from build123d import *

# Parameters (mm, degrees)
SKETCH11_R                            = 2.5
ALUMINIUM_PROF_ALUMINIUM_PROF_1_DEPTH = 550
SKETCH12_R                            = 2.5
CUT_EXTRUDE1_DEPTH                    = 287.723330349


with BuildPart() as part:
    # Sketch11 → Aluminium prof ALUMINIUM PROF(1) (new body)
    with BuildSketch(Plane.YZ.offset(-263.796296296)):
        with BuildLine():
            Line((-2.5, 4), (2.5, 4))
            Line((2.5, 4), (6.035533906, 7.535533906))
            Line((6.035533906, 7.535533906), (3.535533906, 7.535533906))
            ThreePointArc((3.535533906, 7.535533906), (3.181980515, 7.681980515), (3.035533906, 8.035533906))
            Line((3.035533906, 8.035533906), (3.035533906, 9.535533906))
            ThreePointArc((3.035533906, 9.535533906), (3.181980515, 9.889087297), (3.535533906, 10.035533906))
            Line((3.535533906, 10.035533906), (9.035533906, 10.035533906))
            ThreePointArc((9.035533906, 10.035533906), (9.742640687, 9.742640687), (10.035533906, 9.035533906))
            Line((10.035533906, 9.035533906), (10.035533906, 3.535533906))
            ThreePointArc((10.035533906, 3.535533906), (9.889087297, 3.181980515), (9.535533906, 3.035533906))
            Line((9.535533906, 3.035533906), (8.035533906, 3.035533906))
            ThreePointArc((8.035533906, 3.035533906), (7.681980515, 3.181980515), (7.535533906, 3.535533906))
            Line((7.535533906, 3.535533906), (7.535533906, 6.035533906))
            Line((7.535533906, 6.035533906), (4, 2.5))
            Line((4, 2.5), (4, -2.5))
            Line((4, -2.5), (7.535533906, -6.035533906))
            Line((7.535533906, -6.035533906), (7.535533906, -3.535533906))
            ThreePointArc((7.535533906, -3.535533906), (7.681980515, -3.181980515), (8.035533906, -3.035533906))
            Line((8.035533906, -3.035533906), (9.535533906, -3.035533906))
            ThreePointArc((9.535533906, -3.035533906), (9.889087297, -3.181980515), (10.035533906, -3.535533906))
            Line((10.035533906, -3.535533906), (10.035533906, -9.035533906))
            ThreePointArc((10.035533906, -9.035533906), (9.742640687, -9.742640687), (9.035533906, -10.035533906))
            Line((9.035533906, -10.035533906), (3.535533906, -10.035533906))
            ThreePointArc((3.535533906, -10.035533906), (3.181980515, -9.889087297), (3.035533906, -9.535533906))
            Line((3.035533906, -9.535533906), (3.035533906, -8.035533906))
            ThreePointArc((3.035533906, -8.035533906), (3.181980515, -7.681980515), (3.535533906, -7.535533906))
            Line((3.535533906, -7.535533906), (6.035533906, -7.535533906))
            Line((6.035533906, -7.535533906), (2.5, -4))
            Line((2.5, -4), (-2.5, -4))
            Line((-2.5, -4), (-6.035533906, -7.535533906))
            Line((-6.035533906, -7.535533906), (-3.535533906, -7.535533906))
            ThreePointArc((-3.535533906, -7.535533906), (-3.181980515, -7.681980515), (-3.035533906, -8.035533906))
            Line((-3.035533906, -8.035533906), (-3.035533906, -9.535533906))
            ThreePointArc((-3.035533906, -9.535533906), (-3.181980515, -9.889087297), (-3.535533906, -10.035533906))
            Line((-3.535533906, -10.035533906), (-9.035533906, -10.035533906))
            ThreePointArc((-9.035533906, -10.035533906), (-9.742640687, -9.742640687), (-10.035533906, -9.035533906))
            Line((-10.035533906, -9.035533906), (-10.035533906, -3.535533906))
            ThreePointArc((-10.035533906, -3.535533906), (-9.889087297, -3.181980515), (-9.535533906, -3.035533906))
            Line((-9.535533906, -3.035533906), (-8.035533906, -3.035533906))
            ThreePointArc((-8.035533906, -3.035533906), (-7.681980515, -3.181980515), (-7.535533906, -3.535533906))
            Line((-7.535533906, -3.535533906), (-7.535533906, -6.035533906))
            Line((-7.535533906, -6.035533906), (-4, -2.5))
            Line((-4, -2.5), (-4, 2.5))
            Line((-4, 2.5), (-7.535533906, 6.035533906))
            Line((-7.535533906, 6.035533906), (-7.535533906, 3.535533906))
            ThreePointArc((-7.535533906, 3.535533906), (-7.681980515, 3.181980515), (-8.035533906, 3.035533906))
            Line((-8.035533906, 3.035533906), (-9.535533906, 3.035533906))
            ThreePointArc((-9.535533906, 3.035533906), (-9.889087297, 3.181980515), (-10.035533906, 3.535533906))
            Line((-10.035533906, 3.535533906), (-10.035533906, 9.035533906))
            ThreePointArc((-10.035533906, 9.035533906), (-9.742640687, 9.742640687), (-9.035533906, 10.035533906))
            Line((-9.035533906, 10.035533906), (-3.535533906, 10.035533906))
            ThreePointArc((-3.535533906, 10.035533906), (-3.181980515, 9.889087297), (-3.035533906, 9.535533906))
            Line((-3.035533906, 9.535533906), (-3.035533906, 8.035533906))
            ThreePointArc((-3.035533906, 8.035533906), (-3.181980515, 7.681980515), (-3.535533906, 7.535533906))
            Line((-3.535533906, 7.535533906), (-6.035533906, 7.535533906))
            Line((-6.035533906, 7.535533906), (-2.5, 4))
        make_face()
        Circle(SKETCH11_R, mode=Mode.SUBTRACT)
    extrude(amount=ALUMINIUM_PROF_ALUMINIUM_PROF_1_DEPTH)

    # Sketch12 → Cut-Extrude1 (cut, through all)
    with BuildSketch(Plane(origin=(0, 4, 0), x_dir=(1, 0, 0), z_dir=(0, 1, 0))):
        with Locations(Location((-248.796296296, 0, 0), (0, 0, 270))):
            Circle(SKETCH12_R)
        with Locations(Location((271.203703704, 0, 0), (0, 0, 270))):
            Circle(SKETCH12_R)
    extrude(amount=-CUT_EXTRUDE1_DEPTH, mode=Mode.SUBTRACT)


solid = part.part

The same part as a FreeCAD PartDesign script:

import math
import FreeCAD as App
import Part
import Sketcher

doc = App.newDocument("Part")
body = doc.addObject("PartDesign::Body", "Body")

sketch1 = body.newObject("Sketcher::SketchObject", "Sketch")
sketch1.AttachmentSupport = (doc.getObject("YZ_Plane"), [""])
sketch1.MapMode = "FlatFace"
sketch1.AttachmentOffset = App.Placement(App.Vector(0, 0, -263.796296), App.Rotation())
sketch1.addGeometry([
    Part.LineSegment(App.Vector(2.5, 4, 0), App.Vector(-2.5, 4, 0)),
    Part.LineSegment(App.Vector(-2.5, 4, 0), App.Vector(-6.04, 7.54, 0)),
    Part.LineSegment(App.Vector(-6.04, 7.54, 0), App.Vector(-3.54, 7.54, 0)),
    Part.ArcOfCircle(Part.Circle(App.Vector(-3.54, 8.04, 0), App.Vector(0, 0, 1), 0.5), math.radians(-90), math.radians(0)),
    Part.LineSegment(App.Vector(-3.04, 8.04, 0), App.Vector(-3.04, 9.54, 0)),
    Part.ArcOfCircle(Part.Circle(App.Vector(-3.54, 9.54, 0), App.Vector(0, 0, 1), 0.5), math.radians(0), math.radians(90)),
    Part.LineSegment(App.Vector(-3.54, 10.04, 0), App.Vector(-9.04, 10.04, 0)),
    Part.ArcOfCircle(Part.Circle(App.Vector(-9.04, 9.04, 0), App.Vector(0, 0, 1), 1), math.radians(90), math.radians(180)),
    Part.LineSegment(App.Vector(-10.04, 9.04, 0), App.Vector(-10.04, 3.54, 0)),
    Part.ArcOfCircle(Part.Circle(App.Vector(-9.54, 3.54, 0), App.Vector(0, 0, 1), 0.5), math.radians(180), math.radians(270)),
    Part.LineSegment(App.Vector(-9.54, 3.04, 0), App.Vector(-8.04, 3.04, 0)),
    Part.ArcOfCircle(Part.Circle(App.Vector(-8.04, 3.54, 0), App.Vector(0, 0, 1), 0.5), math.radians(-90), math.radians(0)),
    Part.LineSegment(App.Vector(-7.54, 3.54, 0), App.Vector(-7.54, 6.04, 0)),
    Part.LineSegment(App.Vector(-7.54, 6.04, 0), App.Vector(-4, 2.5, 0)),
    Part.LineSegment(App.Vector(-4, 2.5, 0), App.Vector(-4, -2.5, 0)),
    Part.LineSegment(App.Vector(-4, -2.5, 0), App.Vector(-7.54, -6.04, 0)),
    Part.LineSegment(App.Vector(-7.54, -6.04, 0), App.Vector(-7.54, -3.54, 0)),
    Part.ArcOfCircle(Part.Circle(App.Vector(-8.04, -3.54, 0), App.Vector(0, 0, 1), 0.5), math.radians(0), math.radians(90)),
    Part.LineSegment(App.Vector(-8.04, -3.04, 0), App.Vector(-9.54, -3.04, 0)),
    Part.ArcOfCircle(Part.Circle(App.Vector(-9.54, -3.54, 0), App.Vector(0, 0, 1), 0.5), math.radians(90), math.radians(180)),
    Part.LineSegment(App.Vector(-10.04, -3.54, 0), App.Vector(-10.04, -9.04, 0)),
    Part.ArcOfCircle(Part.Circle(App.Vector(-9.04, -9.04, 0), App.Vector(0, 0, 1), 1), math.radians(-180), math.radians(-90)),
    Part.LineSegment(App.Vector(-9.04, -10.04, 0), App.Vector(-3.54, -10.04, 0)),
    Part.ArcOfCircle(Part.Circle(App.Vector(-3.54, -9.54, 0), App.Vector(0, 0, 1), 0.5), math.radians(-90), math.radians(0)),
    Part.LineSegment(App.Vector(-3.04, -9.54, 0), App.Vector(-3.04, -8.04, 0)),
    Part.ArcOfCircle(Part.Circle(App.Vector(-3.54, -8.04, 0), App.Vector(0, 0, 1), 0.5), math.radians(0), math.radians(90)),
    Part.LineSegment(App.Vector(-3.54, -7.54, 0), App.Vector(-6.04, -7.54, 0)),
    Part.LineSegment(App.Vector(-6.04, -7.54, 0), App.Vector(-2.5, -4, 0)),
    Part.LineSegment(App.Vector(-2.5, -4, 0), App.Vector(2.5, -4, 0)),
    Part.LineSegment(App.Vector(2.5, -4, 0), App.Vector(6.04, -7.54, 0)),
    Part.LineSegment(App.Vector(6.04, -7.54, 0), App.Vector(3.54, -7.54, 0)),
    Part.ArcOfCircle(Part.Circle(App.Vector(3.54, -8.04, 0), App.Vector(0, 0, 1), 0.5), math.radians(90), math.radians(180)),
    Part.LineSegment(App.Vector(3.04, -8.04, 0), App.Vector(3.04, -9.54, 0)),
    Part.ArcOfCircle(Part.Circle(App.Vector(3.54, -9.54, 0), App.Vector(0, 0, 1), 0.5), math.radians(180), math.radians(270)),
    Part.LineSegment(App.Vector(3.54, -10.04, 0), App.Vector(9.04, -10.04, 0)),
    Part.ArcOfCircle(Part.Circle(App.Vector(9.04, -9.04, 0), App.Vector(0, 0, 1), 1), math.radians(-90), math.radians(0)),
    Part.LineSegment(App.Vector(10.04, -9.04, 0), App.Vector(10.04, -3.54, 0)),
    Part.ArcOfCircle(Part.Circle(App.Vector(9.54, -3.54, 0), App.Vector(0, 0, 1), 0.5), math.radians(0), math.radians(90)),
    Part.LineSegment(App.Vector(9.54, -3.04, 0), App.Vector(8.04, -3.04, 0)),
    Part.ArcOfCircle(Part.Circle(App.Vector(8.04, -3.54, 0), App.Vector(0, 0, 1), 0.5), math.radians(90), math.radians(180)),
    Part.LineSegment(App.Vector(7.54, -3.54, 0), App.Vector(7.54, -6.04, 0)),
    Part.LineSegment(App.Vector(7.54, -6.04, 0), App.Vector(4, -2.5, 0)),
    Part.LineSegment(App.Vector(4, -2.5, 0), App.Vector(4, 2.5, 0)),
    Part.LineSegment(App.Vector(4, 2.5, 0), App.Vector(7.54, 6.04, 0)),
    Part.LineSegment(App.Vector(7.54, 6.04, 0), App.Vector(7.54, 3.54, 0)),
    Part.ArcOfCircle(Part.Circle(App.Vector(8.04, 3.54, 0), App.Vector(0, 0, 1), 0.5), math.radians(180), math.radians(270)),
    Part.LineSegment(App.Vector(8.04, 3.04, 0), App.Vector(9.54, 3.04, 0)),
    Part.ArcOfCircle(Part.Circle(App.Vector(9.54, 3.54, 0), App.Vector(0, 0, 1), 0.5), math.radians(-90), math.radians(0)),
    Part.LineSegment(App.Vector(10.04, 3.54, 0), App.Vector(10.04, 9.04, 0)),
    Part.ArcOfCircle(Part.Circle(App.Vector(9.04, 9.04, 0), App.Vector(0, 0, 1), 1), math.radians(0), math.radians(90)),
    Part.LineSegment(App.Vector(9.04, 10.04, 0), App.Vector(3.54, 10.04, 0)),
    Part.ArcOfCircle(Part.Circle(App.Vector(3.54, 9.54, 0), App.Vector(0, 0, 1), 0.5), math.radians(90), math.radians(180)),
    Part.LineSegment(App.Vector(3.04, 9.54, 0), App.Vector(3.04, 8.04, 0)),
    Part.ArcOfCircle(Part.Circle(App.Vector(3.54, 8.04, 0), App.Vector(0, 0, 1), 0.5), math.radians(180), math.radians(270)),
    Part.LineSegment(App.Vector(3.54, 7.54, 0), App.Vector(6.04, 7.54, 0)),
    Part.LineSegment(App.Vector(6.04, 7.54, 0), App.Vector(2.5, 4, 0)),
    Part.Circle(App.Vector(0, 0, 0), App.Vector(0, 0, 1), 2.5),
], False)
sketch1.addConstraint([
    Sketcher.Constraint("Coincident", 0, 2, 1, 1),
    Sketcher.Constraint("Coincident", 1, 2, 2, 1),
    Sketcher.Constraint("Tangent", 2, 2, 3, 1),
    Sketcher.Constraint("Tangent", 3, 2, 4, 1),
    Sketcher.Constraint("Tangent", 4, 2, 5, 1),
    Sketcher.Constraint("Tangent", 5, 2, 6, 1),
    Sketcher.Constraint("Tangent", 6, 2, 7, 1),
    Sketcher.Constraint("Tangent", 7, 2, 8, 1),
    Sketcher.Constraint("Tangent", 8, 2, 9, 1),
    Sketcher.Constraint("Tangent", 9, 2, 10, 1),
    Sketcher.Constraint("Tangent", 10, 2, 11, 1),
    Sketcher.Constraint("Tangent", 11, 2, 12, 1),
    Sketcher.Constraint("Coincident", 12, 2, 13, 1),
    Sketcher.Constraint("Coincident", 13, 2, 14, 1),
    Sketcher.Constraint("Coincident", 14, 2, 15, 1),
    Sketcher.Constraint("Coincident", 15, 2, 16, 1),
    Sketcher.Constraint("Tangent", 16, 2, 17, 1),
    Sketcher.Constraint("Tangent", 17, 2, 18, 1),
    Sketcher.Constraint("Tangent", 18, 2, 19, 1),
    Sketcher.Constraint("Tangent", 19, 2, 20, 1),
    Sketcher.Constraint("Tangent", 20, 2, 21, 1),
    Sketcher.Constraint("Tangent", 21, 2, 22, 1),
    Sketcher.Constraint("Tangent", 22, 2, 23, 1),
    Sketcher.Constraint("Tangent", 23, 2, 24, 1),
    Sketcher.Constraint("Tangent", 24, 2, 25, 1),
    Sketcher.Constraint("Tangent", 25, 2, 26, 1),
    Sketcher.Constraint("Coincident", 26, 2, 27, 1),
    Sketcher.Constraint("Coincident", 27, 2, 28, 1),
    Sketcher.Constraint("Coincident", 28, 2, 29, 1),
    Sketcher.Constraint("Coincident", 29, 2, 30, 1),
    Sketcher.Constraint("Tangent", 30, 2, 31, 1),
    Sketcher.Constraint("Tangent", 31, 2, 32, 1),
    Sketcher.Constraint("Tangent", 32, 2, 33, 1),
    Sketcher.Constraint("Tangent", 33, 2, 34, 1),
    Sketcher.Constraint("Tangent", 34, 2, 35, 1),
    Sketcher.Constraint("Tangent", 35, 2, 36, 1),
    Sketcher.Constraint("Tangent", 36, 2, 37, 1),
    Sketcher.Constraint("Tangent", 37, 2, 38, 1),
    Sketcher.Constraint("Tangent", 38, 2, 39, 1),
    Sketcher.Constraint("Tangent", 39, 2, 40, 1),
    Sketcher.Constraint("Coincident", 40, 2, 41, 1),
    Sketcher.Constraint("Coincident", 41, 2, 42, 1),
    Sketcher.Constraint("Coincident", 42, 2, 43, 1),
    Sketcher.Constraint("Coincident", 43, 2, 44, 1),
    Sketcher.Constraint("Tangent", 44, 2, 45, 1),
    Sketcher.Constraint("Tangent", 45, 2, 46, 1),
    Sketcher.Constraint("Tangent", 46, 2, 47, 1),
    Sketcher.Constraint("Tangent", 47, 2, 48, 1),
    Sketcher.Constraint("Tangent", 48, 2, 49, 1),
    Sketcher.Constraint("Tangent", 49, 2, 50, 1),
    Sketcher.Constraint("Tangent", 50, 2, 51, 1),
    Sketcher.Constraint("Tangent", 51, 2, 52, 1),
    Sketcher.Constraint("Tangent", 52, 2, 53, 1),
    Sketcher.Constraint("Tangent", 53, 2, 54, 1),
    Sketcher.Constraint("Coincident", 54, 2, 55, 1),
    Sketcher.Constraint("Coincident", 55, 2, 0, 1),
    Sketcher.Constraint("Horizontal", 0),
    Sketcher.Constraint("Horizontal", 2),
    Sketcher.Constraint("Vertical", 4),
    Sketcher.Constraint("Horizontal", 6),
    Sketcher.Constraint("Vertical", 8),
    Sketcher.Constraint("Horizontal", 10),
    Sketcher.Constraint("Vertical", 12),
    Sketcher.Constraint("Vertical", 14),
    Sketcher.Constraint("Vertical", 16),
    Sketcher.Constraint("Horizontal", 18),
    Sketcher.Constraint("Vertical", 20),
    Sketcher.Constraint("Horizontal", 22),
    Sketcher.Constraint("Vertical", 24),
    Sketcher.Constraint("Horizontal", 26),
    Sketcher.Constraint("Horizontal", 28),
    Sketcher.Constraint("Horizontal", 30),
    Sketcher.Constraint("Vertical", 32),
    Sketcher.Constraint("Horizontal", 34),
    Sketcher.Constraint("Vertical", 36),
    Sketcher.Constraint("Horizontal", 38),
    Sketcher.Constraint("Vertical", 40),
    Sketcher.Constraint("Vertical", 42),
    Sketcher.Constraint("Vertical", 44),
    Sketcher.Constraint("Horizontal", 46),
    Sketcher.Constraint("Vertical", 48),
    Sketcher.Constraint("Horizontal", 50),
    Sketcher.Constraint("Vertical", 52),
    Sketcher.Constraint("Horizontal", 54),
    Sketcher.Constraint("Coincident", 56, 3, -1, 1),
    Sketcher.Constraint("Equal", 3, 5),
    Sketcher.Constraint("Equal", 5, 9),
    Sketcher.Constraint("Equal", 9, 11),
    Sketcher.Constraint("Equal", 11, 17),
    Sketcher.Constraint("Equal", 17, 19),
    Sketcher.Constraint("Equal", 7, 21),
    Sketcher.Constraint("Equal", 19, 23),
    Sketcher.Constraint("Equal", 23, 25),
    Sketcher.Constraint("Equal", 25, 31),
    Sketcher.Constraint("Equal", 31, 33),
    Sketcher.Constraint("Equal", 21, 35),
    Sketcher.Constraint("Equal", 33, 37),
    Sketcher.Constraint("Equal", 37, 39),
    Sketcher.Constraint("Equal", 39, 45),
    Sketcher.Constraint("Equal", 45, 47),
    Sketcher.Constraint("Equal", 35, 49),
    Sketcher.Constraint("Equal", 47, 51),
    Sketcher.Constraint("Equal", 51, 53),
    Sketcher.Constraint("Symmetric", 3, 3, 31, 3, -1, 1),
    Sketcher.Constraint("Symmetric", 7, 3, 35, 3, -1, 1),
    Sketcher.Constraint("Symmetric", 11, 3, 39, 3, -1, 1),
    Sketcher.Constraint("Symmetric", 17, 3, 45, 3, -1, 1),
    Sketcher.Constraint("Symmetric", 21, 3, 49, 3, -1, 1),
    Sketcher.Constraint("Symmetric", 25, 3, 53, 3, -1, 1),
    Sketcher.Constraint("Symmetric", 0, 2, 28, 2, -1, 1),
    Sketcher.Constraint("Symmetric", 13, 2, 41, 2, -1, 1),
    Sketcher.Constraint("Symmetric", 25, 3, 31, 3, -2),
    Sketcher.Constraint("Symmetric", 21, 3, 35, 3, -2),
    Sketcher.Constraint("Symmetric", 17, 3, 39, 3, -2),
    Sketcher.Constraint("Parallel", 1, 13),
    Sketcher.Constraint("Perpendicular", 13, 15),
    Sketcher.Constraint("Parallel", 15, 27),
    Sketcher.Constraint("Perpendicular", 27, 29),
    Sketcher.Constraint("Parallel", 29, 41),
    Sketcher.Constraint("Perpendicular", 41, 43),
    Sketcher.Constraint("Parallel", 43, 55),
    Sketcher.Constraint("Horizontal", 15, 2, 40, 2),
    Sketcher.Constraint("Horizontal", 14, 2, 41, 2),
    Sketcher.Constraint("Horizontal", 13, 2, 42, 2),
    Sketcher.Constraint("Vertical", 1, 2, 26, 2),
    Sketcher.Constraint("Vertical", 29, 2, 54, 2),
    Sketcher.Constraint("Equal", 46, 4),
    Sketcher.Constraint("Equal", 50, 8),
    Sketcher.Constraint("Equal", 54, 12),
    Sketcher.Constraint("Equal", 28, 14),
    Sketcher.Constraint("Equal", 1, 13),
    Sketcher.Constraint("Diameter", 56, 5.0),
    Sketcher.Constraint("Radius", 7, 1.0),
    Sketcher.Constraint("Radius", 3, 0.5),
    Sketcher.Constraint("DistanceX", 0, 2, 0, 1, 5.0),
    Sketcher.Constraint("Distance", 1, 5.0),
    Sketcher.Constraint("DistanceX", 2, 1, 2, 2, 2.5),
    Sketcher.Constraint("DistanceX", 6, 2, 6, 1, 5.5),
    Sketcher.Constraint("DistanceX", 10, 1, 10, 2, 1.5),
])
pad1 = body.newObject("PartDesign::Pad", "Pad")
pad1.Profile = sketch1
pad1.Length = 550

sketch2 = body.newObject("Sketcher::SketchObject", "Sketch001")
sketch2.AttachmentSupport = (doc.getObject("XZ_Plane"), [""])
sketch2.MapMode = "FlatFace"
sketch2.AttachmentOffset = App.Placement(App.Vector(0, 0, -4), App.Rotation())
sketch2.addGeometry([
    Part.Circle(App.Vector(-248.8, 0, 0), App.Vector(0, 0, 1), 2.5),
    Part.Circle(App.Vector(271.2, 0, 0), App.Vector(0, 0, 1), 2.5),
], False)
sketch2.addConstraint([
    Sketcher.Constraint("Equal", 0, 1),
    Sketcher.Constraint("PointOnObject", 0, 3, -1),
    Sketcher.Constraint("PointOnObject", 1, 3, -1),
    Sketcher.Constraint("Diameter", 0, 5.0),
    Sketcher.Constraint("DistanceX", 0, 3, 1, 3, 520.0),
    Sketcher.Constraint("DistanceX", 0, 3, -1, 1, 248.796296),
])
pocket1 = body.newObject("PartDesign::Pocket", "Pocket")
pocket1.Profile = sketch2
pocket1.Type = "ThroughAll"
pocket1.Reversed = True

doc.recompute()
